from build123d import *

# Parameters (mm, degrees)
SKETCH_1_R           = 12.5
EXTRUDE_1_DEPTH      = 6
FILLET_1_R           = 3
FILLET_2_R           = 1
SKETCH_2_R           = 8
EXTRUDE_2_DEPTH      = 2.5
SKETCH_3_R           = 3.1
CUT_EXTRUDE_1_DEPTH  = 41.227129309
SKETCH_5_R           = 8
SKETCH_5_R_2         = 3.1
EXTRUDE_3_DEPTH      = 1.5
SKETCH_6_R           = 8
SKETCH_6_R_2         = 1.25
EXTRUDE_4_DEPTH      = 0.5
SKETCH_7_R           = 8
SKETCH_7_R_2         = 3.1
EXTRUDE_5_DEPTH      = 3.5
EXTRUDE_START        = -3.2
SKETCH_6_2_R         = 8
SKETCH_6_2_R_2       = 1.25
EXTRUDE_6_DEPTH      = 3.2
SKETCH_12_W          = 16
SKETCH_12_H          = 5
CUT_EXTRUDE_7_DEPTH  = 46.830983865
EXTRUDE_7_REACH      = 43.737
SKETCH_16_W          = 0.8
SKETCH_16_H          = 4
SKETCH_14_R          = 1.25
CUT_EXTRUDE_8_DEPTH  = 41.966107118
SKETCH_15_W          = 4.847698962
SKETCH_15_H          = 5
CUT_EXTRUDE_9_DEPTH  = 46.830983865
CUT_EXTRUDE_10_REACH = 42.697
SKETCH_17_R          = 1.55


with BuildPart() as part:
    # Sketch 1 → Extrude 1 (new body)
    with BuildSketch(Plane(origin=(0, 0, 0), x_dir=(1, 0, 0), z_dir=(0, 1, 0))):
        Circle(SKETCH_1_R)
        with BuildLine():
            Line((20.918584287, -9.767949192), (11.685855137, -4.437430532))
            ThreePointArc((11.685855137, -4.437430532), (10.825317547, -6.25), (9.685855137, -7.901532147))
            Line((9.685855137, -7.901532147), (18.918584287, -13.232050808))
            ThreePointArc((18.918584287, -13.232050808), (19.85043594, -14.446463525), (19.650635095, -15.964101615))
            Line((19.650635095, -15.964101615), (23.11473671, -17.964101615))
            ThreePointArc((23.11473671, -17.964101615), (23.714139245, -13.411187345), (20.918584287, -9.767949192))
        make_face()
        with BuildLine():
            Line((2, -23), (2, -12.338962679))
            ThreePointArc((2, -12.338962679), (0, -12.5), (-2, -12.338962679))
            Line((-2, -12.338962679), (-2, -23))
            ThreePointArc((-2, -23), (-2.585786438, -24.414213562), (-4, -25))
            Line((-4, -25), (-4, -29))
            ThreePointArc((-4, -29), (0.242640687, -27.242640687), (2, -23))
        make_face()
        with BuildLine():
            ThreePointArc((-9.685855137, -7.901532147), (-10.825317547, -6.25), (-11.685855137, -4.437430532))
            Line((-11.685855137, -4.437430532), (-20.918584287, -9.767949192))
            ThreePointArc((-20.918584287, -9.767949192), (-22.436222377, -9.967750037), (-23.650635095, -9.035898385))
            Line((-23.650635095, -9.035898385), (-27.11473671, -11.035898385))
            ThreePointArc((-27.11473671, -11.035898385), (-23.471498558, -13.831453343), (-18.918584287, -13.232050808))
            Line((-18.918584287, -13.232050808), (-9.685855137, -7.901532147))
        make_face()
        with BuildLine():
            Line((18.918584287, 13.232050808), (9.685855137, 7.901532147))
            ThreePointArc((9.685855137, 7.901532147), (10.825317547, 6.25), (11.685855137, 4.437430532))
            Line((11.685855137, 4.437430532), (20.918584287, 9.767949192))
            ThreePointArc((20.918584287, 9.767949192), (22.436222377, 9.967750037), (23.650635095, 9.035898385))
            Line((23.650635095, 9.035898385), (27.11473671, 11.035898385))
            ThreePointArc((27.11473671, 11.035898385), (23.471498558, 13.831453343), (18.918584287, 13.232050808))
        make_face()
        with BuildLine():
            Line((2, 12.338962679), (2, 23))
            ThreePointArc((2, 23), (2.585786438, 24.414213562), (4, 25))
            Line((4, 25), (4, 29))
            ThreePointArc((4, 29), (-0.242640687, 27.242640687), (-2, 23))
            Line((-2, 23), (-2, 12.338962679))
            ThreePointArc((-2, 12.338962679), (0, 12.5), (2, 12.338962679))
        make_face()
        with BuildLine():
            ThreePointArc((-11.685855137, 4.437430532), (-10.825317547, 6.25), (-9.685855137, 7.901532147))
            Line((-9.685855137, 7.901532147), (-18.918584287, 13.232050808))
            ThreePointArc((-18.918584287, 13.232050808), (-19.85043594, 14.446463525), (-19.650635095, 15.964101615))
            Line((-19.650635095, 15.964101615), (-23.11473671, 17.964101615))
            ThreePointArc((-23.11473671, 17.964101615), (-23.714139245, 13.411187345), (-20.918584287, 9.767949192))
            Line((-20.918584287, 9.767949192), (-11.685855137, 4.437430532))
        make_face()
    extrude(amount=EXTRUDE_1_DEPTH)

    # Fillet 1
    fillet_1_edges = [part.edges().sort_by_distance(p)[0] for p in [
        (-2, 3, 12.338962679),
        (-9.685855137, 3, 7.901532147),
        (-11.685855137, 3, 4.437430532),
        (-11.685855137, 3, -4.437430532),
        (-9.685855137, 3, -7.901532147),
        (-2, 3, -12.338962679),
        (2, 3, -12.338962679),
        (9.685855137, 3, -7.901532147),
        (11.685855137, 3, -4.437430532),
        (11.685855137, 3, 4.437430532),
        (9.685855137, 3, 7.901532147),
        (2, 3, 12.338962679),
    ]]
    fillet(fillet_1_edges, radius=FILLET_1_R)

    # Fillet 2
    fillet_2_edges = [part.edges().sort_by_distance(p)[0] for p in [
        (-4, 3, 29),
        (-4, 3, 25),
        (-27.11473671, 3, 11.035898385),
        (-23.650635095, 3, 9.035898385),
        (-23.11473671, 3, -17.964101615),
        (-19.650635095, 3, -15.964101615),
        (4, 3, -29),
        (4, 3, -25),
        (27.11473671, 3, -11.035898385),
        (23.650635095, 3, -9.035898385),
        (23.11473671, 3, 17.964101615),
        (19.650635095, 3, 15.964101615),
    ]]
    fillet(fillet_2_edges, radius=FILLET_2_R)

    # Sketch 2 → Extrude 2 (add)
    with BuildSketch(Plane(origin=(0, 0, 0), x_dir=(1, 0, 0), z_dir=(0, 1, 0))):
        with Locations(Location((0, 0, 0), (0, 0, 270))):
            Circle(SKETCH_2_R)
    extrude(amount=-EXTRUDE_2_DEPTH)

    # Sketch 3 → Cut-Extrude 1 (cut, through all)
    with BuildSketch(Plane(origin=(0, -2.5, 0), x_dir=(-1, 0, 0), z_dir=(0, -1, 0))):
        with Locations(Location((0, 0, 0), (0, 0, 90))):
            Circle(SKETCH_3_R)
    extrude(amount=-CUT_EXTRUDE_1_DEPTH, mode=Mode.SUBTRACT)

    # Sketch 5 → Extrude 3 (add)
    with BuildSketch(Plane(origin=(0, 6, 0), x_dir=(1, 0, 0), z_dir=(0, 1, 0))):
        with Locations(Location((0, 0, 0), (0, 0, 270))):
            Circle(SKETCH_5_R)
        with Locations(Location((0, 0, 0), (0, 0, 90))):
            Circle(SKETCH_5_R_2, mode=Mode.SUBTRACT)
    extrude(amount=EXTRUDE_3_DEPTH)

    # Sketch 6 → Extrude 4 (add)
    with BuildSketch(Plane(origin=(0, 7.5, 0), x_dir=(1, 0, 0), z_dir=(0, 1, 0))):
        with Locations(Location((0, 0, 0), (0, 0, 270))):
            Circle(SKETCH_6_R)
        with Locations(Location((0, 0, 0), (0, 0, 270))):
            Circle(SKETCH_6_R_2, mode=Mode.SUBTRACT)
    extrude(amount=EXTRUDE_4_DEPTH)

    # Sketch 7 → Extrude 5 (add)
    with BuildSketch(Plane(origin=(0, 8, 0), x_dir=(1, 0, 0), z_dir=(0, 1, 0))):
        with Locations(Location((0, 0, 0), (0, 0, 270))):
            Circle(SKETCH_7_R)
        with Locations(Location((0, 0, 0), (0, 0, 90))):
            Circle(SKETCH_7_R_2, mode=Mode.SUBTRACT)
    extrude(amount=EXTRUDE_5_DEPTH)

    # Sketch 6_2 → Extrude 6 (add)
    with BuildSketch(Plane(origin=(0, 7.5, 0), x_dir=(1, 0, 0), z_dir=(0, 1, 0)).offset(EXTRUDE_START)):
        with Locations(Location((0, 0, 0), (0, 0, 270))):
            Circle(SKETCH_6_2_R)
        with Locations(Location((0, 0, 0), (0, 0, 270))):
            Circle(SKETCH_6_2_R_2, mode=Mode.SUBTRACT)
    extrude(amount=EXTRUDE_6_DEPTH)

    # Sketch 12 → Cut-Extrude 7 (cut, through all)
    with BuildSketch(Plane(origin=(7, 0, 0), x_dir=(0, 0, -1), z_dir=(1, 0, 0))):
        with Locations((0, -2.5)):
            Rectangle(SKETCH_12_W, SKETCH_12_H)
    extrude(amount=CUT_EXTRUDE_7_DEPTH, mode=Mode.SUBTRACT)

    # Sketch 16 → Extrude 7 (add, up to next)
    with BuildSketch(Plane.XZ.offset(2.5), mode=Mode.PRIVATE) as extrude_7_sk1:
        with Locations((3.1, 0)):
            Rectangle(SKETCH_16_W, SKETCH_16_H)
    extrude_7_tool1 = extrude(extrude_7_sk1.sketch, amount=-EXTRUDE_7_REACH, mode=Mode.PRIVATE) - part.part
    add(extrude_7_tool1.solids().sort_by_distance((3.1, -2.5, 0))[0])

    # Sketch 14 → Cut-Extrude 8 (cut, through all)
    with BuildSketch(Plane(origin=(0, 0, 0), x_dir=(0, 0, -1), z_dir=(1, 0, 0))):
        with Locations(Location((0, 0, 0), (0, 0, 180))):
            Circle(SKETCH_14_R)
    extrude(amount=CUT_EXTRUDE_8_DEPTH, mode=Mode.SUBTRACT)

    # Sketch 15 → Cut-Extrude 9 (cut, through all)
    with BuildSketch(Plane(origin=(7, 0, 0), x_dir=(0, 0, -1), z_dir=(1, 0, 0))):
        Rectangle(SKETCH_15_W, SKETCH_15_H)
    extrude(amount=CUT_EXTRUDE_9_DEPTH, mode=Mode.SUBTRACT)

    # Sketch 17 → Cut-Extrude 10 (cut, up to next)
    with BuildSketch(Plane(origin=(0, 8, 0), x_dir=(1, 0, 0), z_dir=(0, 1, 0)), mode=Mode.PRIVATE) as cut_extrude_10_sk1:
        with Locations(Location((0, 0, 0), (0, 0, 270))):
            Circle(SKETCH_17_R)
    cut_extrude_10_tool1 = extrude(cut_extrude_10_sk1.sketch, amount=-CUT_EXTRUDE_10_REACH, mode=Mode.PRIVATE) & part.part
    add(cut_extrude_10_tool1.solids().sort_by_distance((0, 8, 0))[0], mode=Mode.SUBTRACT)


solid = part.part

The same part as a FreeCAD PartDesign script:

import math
import FreeCAD as App
import Part
import Sketcher
from FreeCAD import Vector
Q = App.Units.Quantity


def edges_at(feature, points):
    """Names of the edges that pass closest to the given points."""
    edges = feature.Shape.Edges
    near = lambda p: min(range(len(edges)), key=lambda i: edges[i].distToShape(Part.Vertex(*p))[0])
    return sorted({f"Edge{near(p) + 1}" for p in points})

doc = App.newDocument("Part")
params = doc.addObject("Spreadsheet::Sheet", "Params")
for row, (alias, value) in enumerate([
    ("sketch1_radius", "2 mm"),
    ("sketch1_radius2", "6 mm"),
    ("sketch1_radius3", "12.5 mm"),
    ("sketch1_height", "1 mm"),
    ("sketch1_height2", "1 mm"),
    ("pad1_length", "6 mm"),
    ("fillet_radius", "3 mm"),
    ("fillet2_radius", "1 mm"),
    ("sketch2_diameter", "16 mm"),
    ("pad2_length", "2.5 mm"),
    ("sketch3_diameter", "6.2 mm"),
    ("sketch4_diameter", "16 mm"),
    ("sketch4_diameter2", "6.2 mm"),
    ("pad3_length", "1.5 mm"),
    ("sketch5_diameter", "16 mm"),
    ("sketch5_diameter2", "2.5 mm"),
    ("pad4_length", "0.5 mm"),
    ("sketch6_diameter", "16 mm"),
    ("sketch6_diameter2", "6.2 mm"),
    ("pad5_length", "3.5 mm"),
    ("sketch7_diameter", "16 mm"),
    ("sketch7_diameter2", "2.5 mm"),
    ("pad6_length", "3.2 mm"),
    ("sketch8_width", "5 mm"),
    ("sketch8_height", "16 mm"),
    ("sketch9_height", "4 mm"),
    ("sketch9_width", "0.8 mm"),
    ("sketch10_diameter", "2.5 mm"),
    ("sketch11_width", "5 mm"),
    ("sketch12_diameter", "3.1 mm"),
    ("pocket5_length", "3.7 mm"),
], start=1):
    params.set(f"A{row}", alias)
    params.set(f"B{row}", "=" + value)
    params.setAlias(f"B{row}", alias)

body = doc.addObject("PartDesign::Body", "Body")

sketch1 = body.newObject("Sketcher::SketchObject", "Sketch")
sketch1.AttachmentSupport = (doc.getObject("XZ_Plane"), [""])
sketch1.MapMode = "FlatFace"
sketch1.addGeometry(Part.LineSegment(Vector(9.7, 7.9, 0), Vector(18.9, 13.2, 0)), False)
sketch1.addGeometry(Part.ArcOfCircle(Part.Circle(Vector(17.9, 15, 0), Vector(0, 0, 1), 2), math.radians(-60), math.radians(30)), False)
sketch1.addGeometry(Part.LineSegment(Vector(19.7, 16, 0), Vector(23.1, 18, 0)), False)
sketch1.addGeometry(Part.ArcOfCircle(Part.Circle(Vector(17.9, 15, 0), Vector(0, 0, 1), 6), math.radians(-60), math.radians(30)), False)
sketch1.addGeometry(Part.LineSegment(Vector(20.9, 9.8, 0), Vector(11.7, 4.4, 0)), False)
sketch1.addGeometry(Part.ArcOfCircle(Part.Circle(Vector(0, 0, 0), Vector(0, 0, 1), 12.5), math.radians(-21), math.radians(21)), False)
sketch1.addGeometry(Part.LineSegment(Vector(11.7, -4.4, 0), Vector(20.9, -9.8, 0)), False)
sketch1.addGeometry(Part.ArcOfCircle(Part.Circle(Vector(21.9, -8, 0), Vector(0, 0, 1), 2), math.radians(-120), math.radians(-30)), False)
sketch1.addGeometry(Part.LineSegment(Vector(23.7, -9, 0), Vector(27.1, -11, 0)), False)
sketch1.addGeometry(Part.ArcOfCircle(Part.Circle(Vector(21.9, -8, 0), Vector(0, 0, 1), 6), math.radians(-120), math.radians(-30)), False)
sketch1.addGeometry(Part.LineSegment(Vector(18.9, -13.2, 0), Vector(9.7, -7.9, 0)), False)
sketch1.addGeometry(Part.ArcOfCircle(Part.Circle(Vector(0, 0, 0), Vector(0, 0, 1), 12.5), math.radians(-81), math.radians(-39)), False)
sketch1.addGeometry(Part.LineSegment(Vector(2, -12.3, 0), Vector(2, -23, 0)), False)
sketch1.addGeometry(Part.ArcOfCircle(Part.Circle(Vector(4, -23, 0), Vector(0, 0, 1), 2), math.radians(-180), math.radians(-90)), False)
sketch1.addGeometry(Part.LineSegment(Vector(4, -25, 0), Vector(4, -29, 0)), False)
sketch1.addGeometry(Part.ArcOfCircle(Part.Circle(Vector(4, -23, 0), Vector(0, 0, 1), 6), math.radians(180), math.radians(270)), False)
sketch1.addGeometry(Part.LineSegment(Vector(-2, -23, 0), Vector(-2, -12.3, 0)), False)
sketch1.addGeometry(Part.ArcOfCircle(Part.Circle(Vector(0, 0, 0), Vector(0, 0, 1), 12.5), math.radians(-141), math.radians(-99)), False)
sketch1.addGeometry(Part.LineSegment(Vector(-9.7, -7.9, 0), Vector(-18.9, -13.2, 0)), False)
sketch1.addGeometry(Part.ArcOfCircle(Part.Circle(Vector(-17.9, -15, 0), Vector(0, 0, 1), 2), math.radians(120), math.radians(210)), False)
sketch1.addGeometry(Part.LineSegment(Vector(-19.7, -16, 0), Vector(-23.1, -18, 0)), False)
sketch1.addGeometry(Part.ArcOfCircle(Part.Circle(Vector(-17.9, -15, 0), Vector(0, 0, 1), 6), math.radians(120), math.radians(210)), False)
sketch1.addGeometry(Part.LineSegment(Vector(-20.9, -9.8, 0), Vector(-11.7, -4.4, 0)), False)
sketch1.addGeometry(Part.ArcOfCircle(Part.Circle(Vector(0, 0, 0), Vector(0, 0, 1), 12.5), math.radians(159), math.radians(201)), False)
sketch1.addGeometry(Part.LineSegment(Vector(-11.7, 4.4, 0), Vector(-20.9, 9.8, 0)), False)
sketch1.addGeometry(Part.ArcOfCircle(Part.Circle(Vector(-21.9, 8, 0), Vector(0, 0, 1), 2), math.radians(60), math.radians(150)), False)
sketch1.addGeometry(Part.LineSegment(Vector(-23.7, 9, 0), Vector(-27.1, 11, 0)), False)
sketch1.addGeometry(Part.ArcOfCircle(Part.Circle(Vector(-21.9, 8, 0), Vector(0, 0, 1), 6), math.radians(60), math.radians(150)), False)
sketch1.addGeometry(Part.LineSegment(Vector(-18.9, 13.2, 0), Vector(-9.7, 7.9, 0)), False)
sketch1.addGeometry(Part.ArcOfCircle(Part.Circle(Vector(0, 0, 0), Vector(0, 0, 1), 12.5), math.radians(99), math.radians(141)), False)
sketch1.addGeometry(Part.LineSegment(Vector(-2, 12.3, 0), Vector(-2, 23, 0)), False)
sketch1.addGeometry(Part.ArcOfCircle(Part.Circle(Vector(-4, 23, 0), Vector(0, 0, 1), 2), math.radians(0), math.radians(90)), False)
sketch1.addGeometry(Part.LineSegment(Vector(-4, 25, 0), Vector(-4, 29, 0)), False)
sketch1.addGeometry(Part.ArcOfCircle(Part.Circle(Vector(-4, 23, 0), Vector(0, 0, 1), 6), math.radians(0), math.radians(90)), False)
sketch1.addGeometry(Part.LineSegment(Vector(2, 23, 0), Vector(2, 12.3, 0)), False)
sketch1.addGeometry(Part.ArcOfCircle(Part.Circle(Vector(0, 0, 0), Vector(0, 0, 1), 12.5), math.radians(39), math.radians(81)), False)
sketch1.addConstraint(Sketcher.Constraint("Tangent", 0, 2, 1, 1))
sketch1.addConstraint(Sketcher.Constraint("Coincident", 1, 2, 2, 1))
sketch1.addConstraint(Sketcher.Constraint("Coincident", 2, 2, 3, 2))
sketch1.addConstraint(Sketcher.Constraint("Tangent", 3, 1, 4, 1))
sketch1.addConstraint(Sketcher.Constraint("Coincident", 4, 2, 5, 2))
sketch1.addConstraint(Sketcher.Constraint("Coincident", 5, 1, 6, 1))
sketch1.addConstraint(Sketcher.Constraint("Tangent", 6, 2, 7, 1))
sketch1.addConstraint(Sketcher.Constraint("Coincident", 7, 2, 8, 1))
sketch1.addConstraint(Sketcher.Constraint("Coincident", 8, 2, 9, 2))
sketch1.addConstraint(Sketcher.Constraint("Tangent", 9, 1, 10, 1))
sketch1.addConstraint(Sketcher.Constraint("Coincident", 10, 2, 11, 2))
sketch1.addConstraint(Sketcher.Constraint("Coincident", 11, 1, 12, 1))
sketch1.addConstraint(Sketcher.Constraint("Tangent", 12, 2, 13, 1))
sketch1.addConstraint(Sketcher.Constraint("Coincident", 13, 2, 14, 1))
sketch1.addConstraint(Sketcher.Constraint("Coincident", 14, 2, 15, 2))
sketch1.addConstraint(Sketcher.Constraint("Tangent", 15, 1, 16, 1))
sketch1.addConstraint(Sketcher.Constraint("Coincident", 16, 2, 17, 2))
sketch1.addConstraint(Sketcher.Constraint("Coincident", 17, 1, 18, 1))
sketch1.addConstraint(Sketcher.Constraint("Tangent", 18, 2, 19, 1))
sketch1.addConstraint(Sketcher.Constraint("Coincident", 19, 2, 20, 1))
sketch1.addConstraint(Sketcher.Constraint("Coincident", 20, 2, 21, 2))
sketch1.addConstraint(Sketcher.Constraint("Tangent", 21, 1, 22, 1))
sketch1.addConstraint(Sketcher.Constraint("Coincident", 22, 2, 23, 2))
sketch1.addConstraint(Sketcher.Constraint("Coincident", 23, 1, 24, 1))
sketch1.addConstraint(Sketcher.Constraint("Tangent", 24, 2, 25, 1))
sketch1.addConstraint(Sketcher.Constraint("Coincident", 25, 2, 26, 1))
sketch1.addConstraint(Sketcher.Constraint("Coincident", 26, 2, 27, 2))
sketch1.addConstraint(Sketcher.Constraint("Tangent", 27, 1, 28, 1))
sketch1.addConstraint(Sketcher.Constraint("Coincident", 28, 2, 29, 2))
sketch1.addConstraint(Sketcher.Constraint("Coincident", 29, 1, 30, 1))
sketch1.addConstraint(Sketcher.Constraint("Tangent", 30, 2, 31, 1))
sketch1.addConstraint(Sketcher.Constraint("Coincident", 31, 2, 32, 1))
sketch1.addConstraint(Sketcher.Constraint("Coincident", 32, 2, 33, 2))
sketch1.addConstraint(Sketcher.Constraint("Tangent", 33, 1, 34, 1))
sketch1.addConstraint(Sketcher.Constraint("Coincident", 34, 2, 35, 2))
sketch1.addConstraint(Sketcher.Constraint("Coincident", 35, 1, 0, 1))
sketch1.addConstraint(Sketcher.Constraint("Vertical", 12))
sketch1.addConstraint(Sketcher.Constraint("Vertical", 14))
sketch1.addConstraint(Sketcher.Constraint("Vertical", 16))
sketch1.addConstraint(Sketcher.Constraint("Vertical", 30))
sketch1.addConstraint(Sketcher.Constraint("Vertical", 32))
sketch1.addConstraint(Sketcher.Constraint("Vertical", 34))
sketch1.addConstraint(Sketcher.Constraint("Coincident", 5, 3, -1, 1))
sketch1.addConstraint(Sketcher.Constraint("Coincident", 11, 3, -1, 1))
sketch1.addConstraint(Sketcher.Constraint("Coincident", 17, 3, -1, 1))
sketch1.addConstraint(Sketcher.Constraint("Coincident", 23, 3, -1, 1))
sketch1.addConstraint(Sketcher.Constraint("Coincident", 29, 3, -1, 1))
sketch1.addConstraint(Sketcher.Constraint("Coincident", 35, 3, -1, 1))
sketch1.addConstraint(Sketcher.Constraint("Coincident", 3, 3, 1, 3))
sketch1.addConstraint(Sketcher.Constraint("Coincident", 9, 3, 7, 3))
sketch1.addConstraint(Sketcher.Constraint("Coincident", 15, 3, 13, 3))
sketch1.addConstraint(Sketcher.Constraint("Coincident", 21, 3, 19, 3))
sketch1.addConstraint(Sketcher.Constraint("Coincident", 27, 3, 25, 3))
sketch1.addConstraint(Sketcher.Constraint("Coincident", 33, 3, 31, 3))
sketch1.addConstraint(Sketcher.Constraint("Equal", 1, 7))
sketch1.addConstraint(Sketcher.Constraint("Equal", 3, 9))
sketch1.addConstraint(Sketcher.Constraint("Equal", 5, 11))
sketch1.addConstraint(Sketcher.Constraint("Equal", 7, 13))
sketch1.addConstraint(Sketcher.Constraint("Equal", 9, 15))
sketch1.addConstraint(Sketcher.Constraint("Equal", 11, 17))
sketch1.addConstraint(Sketcher.Constraint("Equal", 13, 19))
sketch1.addConstraint(Sketcher.Constraint("Equal", 15, 21))
sketch1.addConstraint(Sketcher.Constraint("Equal", 17, 23))
sketch1.addConstraint(Sketcher.Constraint("Equal", 19, 25))
sketch1.addConstraint(Sketcher.Constraint("Equal", 21, 27))
sketch1.addConstraint(Sketcher.Constraint("Equal", 23, 29))
sketch1.addConstraint(Sketcher.Constraint("Equal", 25, 31))
sketch1.addConstraint(Sketcher.Constraint("Equal", 27, 33))
sketch1.addConstraint(Sketcher.Constraint("Equal", 29, 35))
sketch1.addConstraint(Sketcher.Constraint("Symmetric", 1, 3, 19, 3, -1, 1))
sketch1.addConstraint(Sketcher.Constraint("Symmetric", 7, 3, 25, 3, -1, 1))
sketch1.addConstraint(Sketcher.Constraint("Symmetric", 13, 3, 31, 3, -1, 1))
sketch1.addConstraint(Sketcher.Constraint("Symmetric", 9, 1, 18, 2, -2))
sketch1.addConstraint(Sketcher.Constraint("Parallel", 0, 2))
sketch1.addConstraint(Sketcher.Constraint("Parallel", 2, 4))
sketch1.addConstraint(Sketcher.Constraint("Parallel", 6, 8))
sketch1.addConstraint(Sketcher.Constraint("Parallel", 8, 10))
sketch1.addConstraint(Sketcher.Constraint("Parallel", 4, 18))
sketch1.addConstraint(Sketcher.Constraint("Parallel", 18, 20))
sketch1.addConstraint(Sketcher.Constraint("Parallel", 20, 22))
sketch1.addConstraint(Sketcher.Constraint("Parallel", 10, 24))
sketch1.addConstraint(Sketcher.Constraint("Parallel", 24, 26))
sketch1.addConstraint(Sketcher.Constraint("Parallel", 26, 28))
sketch1.addConstraint(Sketcher.Constraint("Horizontal", 11, 1, 16, 2))
sketch1.addConstraint(Sketcher.Constraint("Horizontal", 10, 2, 17, 1))
sketch1.addConstraint(Sketcher.Constraint("Vertical", 15, 3, 13, 2))
sketch1.addConstraint(Sketcher.Constraint("Vertical", 33, 3, 31, 2))
sketch1.addConstraint(Sketcher.Constraint("Equal", 0, 4))
sketch1.addConstraint(Sketcher.Constraint("Radius", 1, 2.0))
sketch1.addConstraint(Sketcher.Constraint("Radius", 3, 6.0))
sketch1.addConstraint(Sketcher.Constraint("Radius", 5, 12.5))
sketch1.addConstraint(Sketcher.Constraint("Angle", 0, Q("30 deg")))
sketch1.addConstraint(Sketcher.Constraint("DistanceY", 13, 3, -1, 1, 23.0))
sketch1.addConstraint(Sketcher.Constraint("DistanceY", 7, 3, 1, 3, 23.0))
sketch1.addConstraint(Sketcher.Constraint("DistanceY", 1, 3, 1, 2, 1.0))
sketch1.addConstraint(Sketcher.Constraint("DistanceY", 7, 2, 9, 3, 1.0))
sketch1.addConstraint(Sketcher.Constraint("DistanceY", 19, 2, 19, 3, 1.0))
sketch1.addConstraint(Sketcher.Constraint("DistanceY", 27, 3, 25, 2, 1.0))
sketch1.setExpression("Constraints[88]", "Params.sketch1_radius")
sketch1.setExpression("Constraints[89]", "Params.sketch1_radius2")
sketch1.setExpression("Constraints[90]", "Params.sketch1_radius3")
sketch1.setExpression("Constraints[94]", "Params.sketch1_height")
sketch1.setExpression("Constraints[96]", "Params.sketch1_height2")
pad1 = body.newObject("PartDesign::Pad", "Pad")
pad1.Profile = sketch1
pad1.setExpression("Length", "Params.pad1_length")
pad1.Reversed = True
doc.recompute()

fillet = body.newObject("PartDesign::Fillet", "Fillet")
fillet.Base = (pad1, edges_at(pad1, [
    (-2, 3, 12.339),
    (-9.686, 3, 7.902),
    (-11.686, 3, 4.437),
    (-11.686, 3, -4.437),
    (-9.686, 3, -7.902),
    (-2, 3, -12.339),
    (2, 3, -12.339),
    (9.686, 3, -7.902),
    (11.686, 3, -4.437),
    (11.686, 3, 4.437),
    (9.686, 3, 7.902),
    (2, 3, 12.339),
]))
fillet.setExpression("Radius", "Params.fillet_radius")
doc.recompute()

fillet2 = body.newObject("PartDesign::Fillet", "Fillet001")
fillet2.Base = (fillet, edges_at(fillet, [
    (-4, 3, 29),
    (-4, 3, 25),
    (-27.115, 3, 11.036),
    (-23.651, 3, 9.036),
    (-23.115, 3, -17.964),
    (-19.651, 3, -15.964),
    (4, 3, -29),
    (4, 3, -25),
    (27.115, 3, -11.036),
    (23.651, 3, -9.036),
    (23.115, 3, 17.964),
    (19.651, 3, 15.964),
]))
fillet2.setExpression("Radius", "Params.fillet2_radius")

sketch2 = body.newObject("Sketcher::SketchObject", "Sketch001")
sketch2.AttachmentSupport = (doc.getObject("XZ_Plane"), [""])
sketch2.MapMode = "FlatFace"
sketch2.addGeometry(Part.Circle(Vector(0, 0, 0), Vector(0, 0, 1), 8), False)
sketch2.addConstraint(Sketcher.Constraint("Coincident", 0, 3, -1, 1))
sketch2.addConstraint(Sketcher.Constraint("Diameter", 0, 16.0))
sketch2.setExpression("Constraints[1]", "Params.sketch2_diameter")
pad2 = body.newObject("PartDesign::Pad", "Pad001")
pad2.Profile = sketch2
pad2.setExpression("Length", "Params.pad2_length")

sketch3 = body.newObject("Sketcher::SketchObject", "Sketch002")
sketch3.AttachmentSupport = (doc.getObject("XZ_Plane"), [""])
sketch3.MapMode = "FlatFace"
sketch3.AttachmentOffset = App.Placement(Vector(0, 0, 2.5), App.Rotation())
sketch3.addGeometry(Part.Circle(Vector(0, 0, 0), Vector(0, 0, 1), 3.1), False)
sketch3.addConstraint(Sketcher.Constraint("Coincident", 0, 3, -1, 1))
sketch3.addConstraint(Sketcher.Constraint("Diameter", 0, 6.2))
sketch3.setExpression("Constraints[1]", "Params.sketch3_diameter")
pocket1 = body.newObject("PartDesign::Pocket", "Pocket")
pocket1.Profile = sketch3
pocket1.Type = "ThroughAll"

sketch4 = body.newObject("Sketcher::SketchObject", "Sketch003")
sketch4.AttachmentSupport = (doc.getObject("XZ_Plane"), [""])
sketch4.MapMode = "FlatFace"
sketch4.AttachmentOffset = App.Placement(Vector(0, 0, -6), App.Rotation())
sketch4.addGeometry(Part.Circle(Vector(0, 0, 0), Vector(0, 0, 1), 8), False)
sketch4.addGeometry(Part.Circle(Vector(0, 0, 0), Vector(0, 0, 1), 3.1), False)
sketch4.addConstraint(Sketcher.Constraint("Coincident", 0, 3, -1, 1))
sketch4.addConstraint(Sketcher.Constraint("Coincident", 1, 3, -1, 1))
sketch4.addConstraint(Sketcher.Constraint("Diameter", 0, 16.0))
sketch4.addConstraint(Sketcher.Constraint("Diameter", 1, 6.2))
sketch4.setExpression("Constraints[2]", "Params.sketch4_diameter")
sketch4.setExpression("Constraints[3]", "Params.sketch4_diameter2")
pad3 = body.newObject("PartDesign::Pad", "Pad002")
pad3.Profile = sketch4
pad3.setExpression("Length", "Params.pad3_length")
pad3.Reversed = True

sketch5 = body.newObject("Sketcher::SketchObject", "Sketch004")
sketch5.AttachmentSupport = (doc.getObject("XZ_Plane"), [""])
sketch5.MapMode = "FlatFace"
sketch5.AttachmentOffset = App.Placement(Vector(0, 0, -7.5), App.Rotation())
sketch5.addGeometry(Part.Circle(Vector(0, 0, 0), Vector(0, 0, 1), 8), False)
sketch5.addGeometry(Part.Circle(Vector(0, 0, 0), Vector(0, 0, 1), 1.2), False)
sketch5.addConstraint(Sketcher.Constraint("Coincident", 0, 3, -1, 1))
sketch5.addConstraint(Sketcher.Constraint("Coincident", 1, 3, -1, 1))
sketch5.addConstraint(Sketcher.Constraint("Diameter", 0, 16.0))
sketch5.addConstraint(Sketcher.Constraint("Diameter", 1, 2.5))
sketch5.setExpression("Constraints[2]", "Params.sketch5_diameter")
sketch5.setExpression("Constraints[3]", "Params.sketch5_diameter2")
pad4 = body.newObject("PartDesign::Pad", "Pad003")
pad4.Profile = sketch5
pad4.setExpression("Length", "Params.pad4_length")
pad4.Reversed = True

sketch6 = body.newObject("Sketcher::SketchObject", "Sketch005")
sketch6.AttachmentSupport = (doc.getObject("XZ_Plane"), [""])
sketch6.MapMode = "FlatFace"
sketch6.AttachmentOffset = App.Placement(Vector(0, 0, -8), App.Rotation())
sketch6.addGeometry(Part.Circle(Vector(0, 0, 0), Vector(0, 0, 1), 8), False)
sketch6.addGeometry(Part.Circle(Vector(0, 0, 0), Vector(0, 0, 1), 3.1), False)
sketch6.addConstraint(Sketcher.Constraint("Coincident", 0, 3, -1, 1))
sketch6.addConstraint(Sketcher.Constraint("Coincident", 1, 3, -1, 1))
sketch6.addConstraint(Sketcher.Constraint("Diameter", 0, 16.0))
sketch6.addConstraint(Sketcher.Constraint("Diameter", 1, 6.2))
sketch6.setExpression("Constraints[2]", "Params.sketch6_diameter")
sketch6.setExpression("Constraints[3]", "Params.sketch6_diameter2")
pad5 = body.newObject("PartDesign::Pad", "Pad004")
pad5.Profile = sketch6
pad5.setExpression("Length", "Params.pad5_length")
pad5.Reversed = True

sketch7 = body.newObject("Sketcher::SketchObject", "Sketch006")
sketch7.AttachmentSupport = (doc.getObject("XZ_Plane"), [""])
sketch7.MapMode = "FlatFace"
sketch7.AttachmentOffset = App.Placement(Vector(0, 0, -4.3), App.Rotation())
sketch7.addGeometry(Part.Circle(Vector(0, 0, 0), Vector(0, 0, 1), 8), False)
sketch7.addGeometry(Part.Circle(Vector(0, 0, 0), Vector(0, 0, 1), 1.2), False)
sketch7.addConstraint(Sketcher.Constraint("Coincident", 0, 3, -1, 1))
sketch7.addConstraint(Sketcher.Constraint("Coincident", 1, 3, -1, 1))
sketch7.addConstraint(Sketcher.Constraint("Diameter", 0, 16.0))
sketch7.addConstraint(Sketcher.Constraint("Diameter", 1, 2.5))
sketch7.setExpression("Constraints[2]", "Params.sketch7_diameter")
sketch7.setExpression("Constraints[3]", "Params.sketch7_diameter2")
pad6 = body.newObject("PartDesign::Pad", "Pad005")
pad6.Profile = sketch7
pad6.setExpression("Length", "Params.pad6_length")
pad6.Reversed = True

sketch8 = body.newObject("Sketcher::SketchObject", "Sketch007")
sketch8.AttachmentSupport = (doc.getObject("YZ_Plane"), [""])
sketch8.MapMode = "FlatFace"
sketch8.AttachmentOffset = App.Placement(Vector(0, 0, 7), App.Rotation())
sketch8.addGeometry(Part.LineSegment(Vector(0, 8, 0), Vector(-5, 8, 0)), False)
sketch8.addGeometry(Part.LineSegment(Vector(-5, 8, 0), Vector(-5, -8, 0)), False)
sketch8.addGeometry(Part.LineSegment(Vector(-5, -8, 0), Vector(0, -8, 0)), False)
sketch8.addGeometry(Part.LineSegment(Vector(0, -8, 0), Vector(0, 8, 0)), False)
sketch8.addConstraint(Sketcher.Constraint("Coincident", 0, 2, 1, 1))
sketch8.addConstraint(Sketcher.Constraint("Coincident", 1, 2, 2, 1))
sketch8.addConstraint(Sketcher.Constraint("Coincident", 2, 2, 3, 1))
sketch8.addConstraint(Sketcher.Constraint("Coincident", 3, 2, 0, 1))
sketch8.addConstraint(Sketcher.Constraint("Horizontal", 0))
sketch8.addConstraint(Sketcher.Constraint("Vertical", 1))
sketch8.addConstraint(Sketcher.Constraint("Horizontal", 2))
sketch8.addConstraint(Sketcher.Constraint("Vertical", 3))
sketch8.addConstraint(Sketcher.Constraint("Symmetric", 2, 2, 3, 2, -1, 1))
sketch8.addConstraint(Sketcher.Constraint("DistanceX", 0, 2, 0, 1, 5.0))
sketch8.addConstraint(Sketcher.Constraint("DistanceY", 1, 2, 1, 1, 16.0))
sketch8.setExpression("Constraints[9]", "Params.sketch8_width")
sketch8.setExpression("Constraints[10]", "Params.sketch8_height")
pocket2 = body.newObject("PartDesign::Pocket", "Pocket001")
pocket2.Profile = sketch8
pocket2.Type = "ThroughAll"
pocket2.Reversed = True

sketch9 = body.newObject("Sketcher::SketchObject", "Sketch008")
sketch9.AttachmentSupport = (doc.getObject("XZ_Plane"), [""])
sketch9.MapMode = "FlatFace"
sketch9.AttachmentOffset = App.Placement(Vector(0, 0, 2.5), App.Rotation())
sketch9.addGeometry(Part.LineSegment(Vector(2.7, 2, 0), Vector(2.7, -2, 0)), False)
sketch9.addGeometry(Part.LineSegment(Vector(2.7, -2, 0), Vector(3.5, -2, 0)), False)
sketch9.addGeometry(Part.LineSegment(Vector(3.5, -2, 0), Vector(3.5, 2, 0)), False)
sketch9.addGeometry(Part.LineSegment(Vector(3.5, 2, 0), Vector(2.7, 2, 0)), False)
sketch9.addConstraint(Sketcher.Constraint("Coincident", 0, 2, 1, 1))
sketch9.addConstraint(Sketcher.Constraint("Coincident", 1, 2, 2, 1))
sketch9.addConstraint(Sketcher.Constraint("Coincident", 2, 2, 3, 1))
sketch9.addConstraint(Sketcher.Constraint("Coincident", 3, 2, 0, 1))
sketch9.addConstraint(Sketcher.Constraint("Vertical", 0))
sketch9.addConstraint(Sketcher.Constraint("Horizontal", 1))
sketch9.addConstraint(Sketcher.Constraint("Vertical", 2))
sketch9.addConstraint(Sketcher.Constraint("Horizontal", 3))
sketch9.addConstraint(Sketcher.Constraint("DistanceY", 0, 2, 0, 1, 4.0))
sketch9.addConstraint(Sketcher.Constraint("DistanceX", 1, 1, 1, 2, 0.8))
sketch9.addConstraint(Sketcher.Constraint("DistanceY", 0, 2, -1, 1, 2.0))
sketch9.addConstraint(Sketcher.Constraint("DistanceX", -1, 1, 0, 2, 2.7))
sketch9.setExpression("Constraints[8]", "Params.sketch9_height")
sketch9.setExpression("Constraints[9]", "Params.sketch9_width")
pad7 = body.newObject("PartDesign::Pad", "Pad006")
pad7.Profile = sketch9
pad7.Type = "UpToFirst"
pad7.Reversed = True

sketch10 = body.newObject("Sketcher::SketchObject", "Sketch009")
sketch10.AttachmentSupport = (doc.getObject("YZ_Plane"), [""])
sketch10.MapMode = "FlatFace"
sketch10.addGeometry(Part.Circle(Vector(0, 0, 0), Vector(0, 0, 1), 1.2), False)
sketch10.addConstraint(Sketcher.Constraint("Coincident", 0, 3, -1, 1))
sketch10.addConstraint(Sketcher.Constraint("Diameter", 0, 2.5))
sketch10.setExpression("Constraints[1]", "Params.sketch10_diameter")
pocket3 = body.newObject("PartDesign::Pocket", "Pocket002")
pocket3.Profile = sketch10
pocket3.Type = "ThroughAll"
pocket3.Reversed = True

sketch11 = body.newObject("Sketcher::SketchObject", "Sketch010")
sketch11.AttachmentSupport = (doc.getObject("YZ_Plane"), [""])
sketch11.MapMode = "FlatFace"
sketch11.AttachmentOffset = App.Placement(Vector(0, 0, 7), App.Rotation())
sketch11.addGeometry(Part.LineSegment(Vector(2.5, 2.4, 0), Vector(-2.5, 2.4, 0)), False)
sketch11.addGeometry(Part.LineSegment(Vector(-2.5, 2.4, 0), Vector(-2.5, -2.4, 0)), False)
sketch11.addGeometry(Part.LineSegment(Vector(-2.5, -2.4, 0), Vector(2.5, -2.4, 0)), False)
sketch11.addGeometry(Part.LineSegment(Vector(2.5, -2.4, 0), Vector(2.5, 2.4, 0)), False)
sketch11.addConstraint(Sketcher.Constraint("Coincident", 0, 2, 1, 1))
sketch11.addConstraint(Sketcher.Constraint("Coincident", 1, 2, 2, 1))
sketch11.addConstraint(Sketcher.Constraint("Coincident", 2, 2, 3, 1))
sketch11.addConstraint(Sketcher.Constraint("Coincident", 3, 2, 0, 1))
sketch11.addConstraint(Sketcher.Constraint("Horizontal", 0))
sketch11.addConstraint(Sketcher.Constraint("Vertical", 1))
sketch11.addConstraint(Sketcher.Constraint("Horizontal", 2))
sketch11.addConstraint(Sketcher.Constraint("Vertical", 3))
sketch11.addConstraint(Sketcher.Constraint("Symmetric", 0, 2, 2, 2, -1, 1))
sketch11.addConstraint(Sketcher.Constraint("DistanceX", 0, 2, 0, 1, 5.0))
sketch11.addConstraint(Sketcher.Constraint("DistanceY", 1, 2, 1, 1, 4.847699))
sketch11.setExpression("Constraints[9]", "Params.sketch11_width")
pocket4 = body.newObject("PartDesign::Pocket", "Pocket003")
pocket4.Profile = sketch11
pocket4.Type = "ThroughAll"
pocket4.Reversed = True

sketch12 = body.newObject("Sketcher::SketchObject", "Sketch011")
sketch12.AttachmentSupport = (doc.getObject("XZ_Plane"), [""])
sketch12.MapMode = "FlatFace"
sketch12.AttachmentOffset = App.Placement(Vector(0, 0, -8), App.Rotation())
sketch12.addGeometry(Part.Circle(Vector(0, 0, 0), Vector(0, 0, 1), 1.6), False)
sketch12.addConstraint(Sketcher.Constraint("Coincident", 0, 3, -1, 1))
sketch12.addConstraint(Sketcher.Constraint("Diameter", 0, 3.1))
sketch12.setExpression("Constraints[1]", "Params.sketch12_diameter")
pocket5 = body.newObject("PartDesign::Pocket", "Pocket004")
pocket5.Profile = sketch12
pocket5.setExpression("Length", "Params.pocket5_length")
pocket5.Reversed = True

doc.recompute()
